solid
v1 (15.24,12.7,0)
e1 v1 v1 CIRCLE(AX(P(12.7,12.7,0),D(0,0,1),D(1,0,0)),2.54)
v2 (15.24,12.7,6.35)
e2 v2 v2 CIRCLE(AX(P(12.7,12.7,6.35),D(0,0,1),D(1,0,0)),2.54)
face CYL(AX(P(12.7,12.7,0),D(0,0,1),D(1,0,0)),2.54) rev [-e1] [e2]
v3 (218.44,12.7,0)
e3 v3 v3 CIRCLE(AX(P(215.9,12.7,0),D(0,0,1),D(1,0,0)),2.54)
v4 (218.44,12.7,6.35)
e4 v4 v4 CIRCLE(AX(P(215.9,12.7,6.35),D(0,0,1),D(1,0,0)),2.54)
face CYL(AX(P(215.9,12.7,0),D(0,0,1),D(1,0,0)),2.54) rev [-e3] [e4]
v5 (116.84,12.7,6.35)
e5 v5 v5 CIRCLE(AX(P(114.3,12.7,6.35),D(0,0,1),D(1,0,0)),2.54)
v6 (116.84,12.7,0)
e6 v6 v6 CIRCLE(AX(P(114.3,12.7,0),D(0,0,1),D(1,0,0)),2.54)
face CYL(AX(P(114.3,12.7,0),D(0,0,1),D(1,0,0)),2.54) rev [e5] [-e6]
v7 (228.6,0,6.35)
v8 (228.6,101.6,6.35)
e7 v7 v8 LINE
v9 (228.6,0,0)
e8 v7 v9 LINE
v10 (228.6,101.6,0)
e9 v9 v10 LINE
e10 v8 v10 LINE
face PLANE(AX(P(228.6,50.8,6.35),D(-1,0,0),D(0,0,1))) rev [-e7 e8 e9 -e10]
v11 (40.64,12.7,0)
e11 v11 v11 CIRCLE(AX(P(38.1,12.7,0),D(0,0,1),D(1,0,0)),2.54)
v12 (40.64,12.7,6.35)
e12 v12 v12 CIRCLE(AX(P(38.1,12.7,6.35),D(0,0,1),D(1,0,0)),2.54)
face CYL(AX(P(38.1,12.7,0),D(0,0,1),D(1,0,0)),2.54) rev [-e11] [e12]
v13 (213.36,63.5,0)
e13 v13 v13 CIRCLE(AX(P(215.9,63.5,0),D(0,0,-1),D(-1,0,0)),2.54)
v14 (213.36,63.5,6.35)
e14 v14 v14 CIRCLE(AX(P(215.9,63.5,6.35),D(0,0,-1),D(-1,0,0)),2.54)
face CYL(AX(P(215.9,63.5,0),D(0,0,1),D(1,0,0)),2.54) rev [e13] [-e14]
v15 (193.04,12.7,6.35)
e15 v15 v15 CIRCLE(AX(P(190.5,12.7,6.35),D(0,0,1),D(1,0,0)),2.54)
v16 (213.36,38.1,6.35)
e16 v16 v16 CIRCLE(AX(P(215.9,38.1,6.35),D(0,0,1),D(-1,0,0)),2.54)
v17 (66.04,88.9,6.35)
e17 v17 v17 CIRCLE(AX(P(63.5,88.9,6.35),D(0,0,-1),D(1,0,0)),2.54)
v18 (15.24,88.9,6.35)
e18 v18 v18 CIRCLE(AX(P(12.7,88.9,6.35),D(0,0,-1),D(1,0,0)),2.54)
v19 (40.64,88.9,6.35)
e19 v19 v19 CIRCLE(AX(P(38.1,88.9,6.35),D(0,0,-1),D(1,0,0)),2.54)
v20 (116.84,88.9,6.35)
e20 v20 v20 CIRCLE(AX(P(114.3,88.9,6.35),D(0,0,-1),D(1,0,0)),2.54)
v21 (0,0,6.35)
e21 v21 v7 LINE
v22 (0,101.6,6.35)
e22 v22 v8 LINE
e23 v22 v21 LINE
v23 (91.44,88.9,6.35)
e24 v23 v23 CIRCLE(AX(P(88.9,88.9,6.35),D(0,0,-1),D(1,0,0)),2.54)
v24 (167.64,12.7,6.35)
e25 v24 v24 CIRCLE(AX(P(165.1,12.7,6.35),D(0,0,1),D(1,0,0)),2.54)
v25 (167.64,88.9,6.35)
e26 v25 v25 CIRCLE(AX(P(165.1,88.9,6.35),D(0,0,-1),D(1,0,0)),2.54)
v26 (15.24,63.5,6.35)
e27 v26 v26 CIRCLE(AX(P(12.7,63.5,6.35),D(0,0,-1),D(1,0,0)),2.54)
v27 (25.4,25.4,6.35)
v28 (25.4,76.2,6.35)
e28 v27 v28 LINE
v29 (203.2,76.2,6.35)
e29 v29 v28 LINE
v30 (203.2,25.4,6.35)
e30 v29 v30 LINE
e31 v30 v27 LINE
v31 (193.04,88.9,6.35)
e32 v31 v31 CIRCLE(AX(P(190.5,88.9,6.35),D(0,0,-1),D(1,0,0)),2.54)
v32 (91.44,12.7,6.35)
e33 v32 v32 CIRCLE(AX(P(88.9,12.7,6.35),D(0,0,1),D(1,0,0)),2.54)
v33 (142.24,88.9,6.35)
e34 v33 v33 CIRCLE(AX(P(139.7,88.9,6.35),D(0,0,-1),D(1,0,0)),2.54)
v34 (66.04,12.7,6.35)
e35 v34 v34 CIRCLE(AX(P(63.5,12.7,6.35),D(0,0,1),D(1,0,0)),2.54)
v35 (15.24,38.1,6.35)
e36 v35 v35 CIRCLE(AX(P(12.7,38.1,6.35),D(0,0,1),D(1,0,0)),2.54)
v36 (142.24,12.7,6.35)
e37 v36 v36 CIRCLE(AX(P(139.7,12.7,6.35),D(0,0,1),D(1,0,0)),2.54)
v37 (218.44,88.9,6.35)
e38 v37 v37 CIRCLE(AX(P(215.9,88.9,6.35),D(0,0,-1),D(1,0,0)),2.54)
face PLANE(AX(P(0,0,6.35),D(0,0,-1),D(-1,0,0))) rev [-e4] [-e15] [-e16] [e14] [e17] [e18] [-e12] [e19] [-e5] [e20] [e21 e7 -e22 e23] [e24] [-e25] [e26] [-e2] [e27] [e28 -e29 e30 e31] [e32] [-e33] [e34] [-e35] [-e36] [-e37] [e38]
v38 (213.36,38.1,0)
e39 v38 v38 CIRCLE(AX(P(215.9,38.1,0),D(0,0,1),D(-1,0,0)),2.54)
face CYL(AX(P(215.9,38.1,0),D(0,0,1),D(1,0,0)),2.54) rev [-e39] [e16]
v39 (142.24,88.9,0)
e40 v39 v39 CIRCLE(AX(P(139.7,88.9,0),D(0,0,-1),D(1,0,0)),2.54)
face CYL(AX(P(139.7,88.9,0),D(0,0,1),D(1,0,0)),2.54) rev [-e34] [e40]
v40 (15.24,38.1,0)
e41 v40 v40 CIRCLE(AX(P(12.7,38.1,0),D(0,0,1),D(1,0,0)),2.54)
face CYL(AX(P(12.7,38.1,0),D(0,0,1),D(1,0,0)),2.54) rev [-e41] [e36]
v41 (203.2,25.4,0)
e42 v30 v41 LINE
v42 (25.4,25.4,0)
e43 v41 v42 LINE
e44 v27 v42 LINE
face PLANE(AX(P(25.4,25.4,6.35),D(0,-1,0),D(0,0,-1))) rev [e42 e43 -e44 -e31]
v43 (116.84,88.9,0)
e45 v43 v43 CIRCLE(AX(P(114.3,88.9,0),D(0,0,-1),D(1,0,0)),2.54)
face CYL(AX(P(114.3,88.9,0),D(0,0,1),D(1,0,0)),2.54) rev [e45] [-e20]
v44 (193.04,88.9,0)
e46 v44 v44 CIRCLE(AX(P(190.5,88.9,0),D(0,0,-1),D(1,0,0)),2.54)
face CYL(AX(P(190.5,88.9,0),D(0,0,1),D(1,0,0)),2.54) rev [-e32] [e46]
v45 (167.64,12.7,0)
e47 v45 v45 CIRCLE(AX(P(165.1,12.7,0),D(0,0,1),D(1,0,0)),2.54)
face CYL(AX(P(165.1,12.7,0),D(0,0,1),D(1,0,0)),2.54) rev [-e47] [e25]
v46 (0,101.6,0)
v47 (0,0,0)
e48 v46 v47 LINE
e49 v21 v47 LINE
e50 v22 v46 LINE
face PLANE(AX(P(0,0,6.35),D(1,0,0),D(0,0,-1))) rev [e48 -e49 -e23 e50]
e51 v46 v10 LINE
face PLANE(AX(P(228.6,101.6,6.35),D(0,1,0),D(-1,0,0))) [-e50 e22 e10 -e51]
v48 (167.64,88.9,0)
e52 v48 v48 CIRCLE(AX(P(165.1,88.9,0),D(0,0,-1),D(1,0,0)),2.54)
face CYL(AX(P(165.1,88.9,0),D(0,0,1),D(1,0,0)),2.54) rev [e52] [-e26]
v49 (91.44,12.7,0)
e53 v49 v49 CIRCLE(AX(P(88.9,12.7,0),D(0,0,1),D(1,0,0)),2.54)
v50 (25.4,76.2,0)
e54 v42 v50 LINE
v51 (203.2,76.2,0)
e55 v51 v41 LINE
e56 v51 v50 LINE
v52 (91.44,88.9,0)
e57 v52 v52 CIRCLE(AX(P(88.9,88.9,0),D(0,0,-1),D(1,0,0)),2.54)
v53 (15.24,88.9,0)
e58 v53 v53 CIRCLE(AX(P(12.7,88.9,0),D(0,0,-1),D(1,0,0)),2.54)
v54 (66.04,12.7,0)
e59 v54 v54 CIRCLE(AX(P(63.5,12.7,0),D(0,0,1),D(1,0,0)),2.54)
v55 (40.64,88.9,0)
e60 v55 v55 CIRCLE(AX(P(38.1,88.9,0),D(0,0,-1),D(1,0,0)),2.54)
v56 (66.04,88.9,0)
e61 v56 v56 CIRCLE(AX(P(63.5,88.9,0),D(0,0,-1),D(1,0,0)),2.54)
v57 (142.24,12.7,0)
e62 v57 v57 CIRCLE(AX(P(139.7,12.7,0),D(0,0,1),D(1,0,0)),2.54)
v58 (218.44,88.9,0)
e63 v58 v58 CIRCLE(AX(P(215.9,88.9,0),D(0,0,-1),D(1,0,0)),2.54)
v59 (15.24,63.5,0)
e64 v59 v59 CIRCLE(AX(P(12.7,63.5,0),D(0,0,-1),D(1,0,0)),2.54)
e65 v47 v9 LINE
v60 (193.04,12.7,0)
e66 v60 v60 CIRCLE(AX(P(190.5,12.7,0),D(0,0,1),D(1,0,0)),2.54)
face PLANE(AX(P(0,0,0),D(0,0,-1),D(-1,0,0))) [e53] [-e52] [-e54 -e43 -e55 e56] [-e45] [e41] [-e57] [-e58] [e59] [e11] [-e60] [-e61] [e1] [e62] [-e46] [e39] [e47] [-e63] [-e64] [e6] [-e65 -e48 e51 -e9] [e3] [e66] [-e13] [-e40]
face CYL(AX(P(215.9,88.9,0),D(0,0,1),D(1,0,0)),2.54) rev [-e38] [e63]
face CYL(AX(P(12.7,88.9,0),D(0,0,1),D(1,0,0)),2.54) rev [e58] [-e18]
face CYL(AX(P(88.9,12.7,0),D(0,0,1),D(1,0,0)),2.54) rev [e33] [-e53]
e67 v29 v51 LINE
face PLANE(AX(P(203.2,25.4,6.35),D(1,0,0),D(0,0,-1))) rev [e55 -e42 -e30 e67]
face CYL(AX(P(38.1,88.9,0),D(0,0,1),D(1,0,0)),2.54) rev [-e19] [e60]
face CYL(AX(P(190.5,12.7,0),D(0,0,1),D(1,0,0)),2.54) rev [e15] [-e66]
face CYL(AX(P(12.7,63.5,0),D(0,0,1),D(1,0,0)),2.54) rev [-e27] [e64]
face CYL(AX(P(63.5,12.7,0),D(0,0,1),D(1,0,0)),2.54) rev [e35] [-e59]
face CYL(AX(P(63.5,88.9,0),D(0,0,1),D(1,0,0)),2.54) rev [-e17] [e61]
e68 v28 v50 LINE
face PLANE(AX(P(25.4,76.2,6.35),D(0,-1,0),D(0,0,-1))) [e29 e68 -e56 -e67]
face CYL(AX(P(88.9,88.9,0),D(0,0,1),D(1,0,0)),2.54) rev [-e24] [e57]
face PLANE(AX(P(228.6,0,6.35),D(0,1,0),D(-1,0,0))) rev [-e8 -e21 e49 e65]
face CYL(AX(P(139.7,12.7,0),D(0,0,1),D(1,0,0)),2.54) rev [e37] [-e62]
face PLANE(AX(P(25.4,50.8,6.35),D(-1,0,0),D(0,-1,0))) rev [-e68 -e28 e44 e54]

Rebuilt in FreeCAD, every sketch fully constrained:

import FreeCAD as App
import Part
import Sketcher
from FreeCAD import Vector
Q = App.Units.Quantity


def add_polygon(sketch, points):
    """Adds a closed chain of lines whose ends are joined by coincident constraints."""
    first, n = sketch.GeometryCount, len(points)
    for a, b in zip(points, points[1:] + points[:1]):
        sketch.addGeometry(Part.LineSegment(App.Vector(*a, 0), App.Vector(*b, 0)), False)
    for i in range(n):
        sketch.addConstraint(Sketcher.Constraint("Coincident", first + i, 2, first + (i + 1) % n, 1))

doc = App.newDocument("Part")
body = doc.addObject("PartDesign::Body", "Body")

# Sketch on XY plane
sketch1 = body.newObject("Sketcher::SketchObject", "Sketch")
sketch1.AttachmentSupport = (doc.getObject("XY_Plane"), [""])
sketch1.MapMode = "FlatFace"
add_polygon(sketch1, [(0, 51), (0, 0), (229, 0), (229, 51), (203, 51), (203, 25), (25, 25), (25, 51)])  # lines 0-7
sketch1.addConstraint([
    Sketcher.Constraint("Vertical", 0),
    Sketcher.Constraint("Horizontal", 1),
    Sketcher.Constraint("Vertical", 2),
    Sketcher.Constraint("Horizontal", 3),
    Sketcher.Constraint("Vertical", 4),
    Sketcher.Constraint("Horizontal", 5),
    Sketcher.Constraint("Vertical", 6),
    Sketcher.Constraint("Horizontal", 7),
    Sketcher.Constraint("Coincident", 0, 2, -1, 1),
    Sketcher.Constraint("Horizontal", 3, 2, 6, 2),
    Sketcher.Constraint("Equal", 3, 7),
    Sketcher.Constraint("Equal", 7, 4),
    Sketcher.Constraint("DistanceX", 1, 1, 1, 2, Q("9 in")),
    Sketcher.Constraint("DistanceX", 3, 2, 3, 1, Q("1 in")),
    Sketcher.Constraint("DistanceY", 0, 2, 0, 1, Q("2 in")),
])
pad1 = body.newObject("PartDesign::Pad", "Pad")
pad1.Profile = sketch1
pad1.Length = Q("0.25 in")

# Sketch on XY plane
sketch2 = body.newObject("Sketcher::SketchObject", "Sketch001")
sketch2.AttachmentSupport = (doc.getObject("XY_Plane"), [""])
sketch2.MapMode = "FlatFace"
sketch2.AttachmentOffset = App.Placement(Vector(0, 0, 0.25 * 25.4), App.Rotation())
sketch2.addGeometry([
    Part.Circle(Vector(12.7, 38.1, 0), Vector(0, 0, 1), 2.5),  # 0
    Part.Circle(Vector(12.7, 12.7, 0), Vector(0, 0, 1), 2.5),  # 1
    Part.Circle(Vector(38.1, 12.7, 0), Vector(0, 0, 1), 2.5),  # 2
    Part.Circle(Vector(63.5, 12.7, 0), Vector(0, 0, 1), 2.5),  # 3
    Part.Circle(Vector(88.9, 12.7, 0), Vector(0, 0, 1), 2.5),  # 4
    Part.Circle(Vector(114.3, 12.7, 0), Vector(0, 0, 1), 2.5),  # 5
    Part.Circle(Vector(139.7, 12.7, 0), Vector(0, 0, 1), 2.5),  # 6
    Part.Circle(Vector(165.1, 12.7, 0), Vector(0, 0, 1), 2.5),  # 7
    Part.Circle(Vector(190.5, 12.7, 0), Vector(0, 0, 1), 2.5),  # 8
    Part.Circle(Vector(215.9, 12.7, 0), Vector(0, 0, 1), 2.5),  # 9
    Part.Circle(Vector(215.9, 38.1, 0), Vector(0, 0, 1), 2.5),  # 10
], False)
sketch2.addConstraint([
    Sketcher.Constraint("Equal", 0, 1),
    Sketcher.Constraint("Equal", 1, 2),
    Sketcher.Constraint("Equal", 2, 3),
    Sketcher.Constraint("Equal", 3, 4),
    Sketcher.Constraint("Equal", 4, 5),
    Sketcher.Constraint("Equal", 5, 6),
    Sketcher.Constraint("Equal", 6, 7),
    Sketcher.Constraint("Equal", 7, 8),
    Sketcher.Constraint("Equal", 8, 9),
    Sketcher.Constraint("Equal", 9, 10),
    Sketcher.Constraint("Horizontal", 1, 3, 2, 3),
    Sketcher.Constraint("Horizontal", 2, 3, 3, 3),
    Sketcher.Constraint("Horizontal", 3, 3, 4, 3),
    Sketcher.Constraint("Horizontal", 4, 3, 5, 3),
    Sketcher.Constraint("Horizontal", 5, 3, 6, 3),
    Sketcher.Constraint("Horizontal", 6, 3, 7, 3),
    Sketcher.Constraint("Horizontal", 7, 3, 8, 3),
    Sketcher.Constraint("Horizontal", 8, 3, 9, 3),
    Sketcher.Constraint("Horizontal", 0, 3, 10, 3),
    Sketcher.Constraint("Vertical", 0, 3, 1, 3),
    Sketcher.Constraint("Vertical", 9, 3, 10, 3),
    Sketcher.Constraint("Diameter", 0, Q("0.2 in")),
    Sketcher.Constraint("DistanceY", 1, 3, 0, 3, Q("1 in")),
    Sketcher.Constraint("DistanceX", 1, 3, 2, 3, Q("1 in")),
    Sketcher.Constraint("DistanceX", 2, 3, 3, 3, Q("1 in")),
    Sketcher.Constraint("DistanceX", 3, 3, 4, 3, Q("1 in")),
    Sketcher.Constraint("DistanceX", 4, 3, 5, 3, Q("1 in")),
    Sketcher.Constraint("DistanceX", 5, 3, 6, 3, Q("1 in")),
    Sketcher.Constraint("DistanceX", 6, 3, 7, 3, Q("1 in")),
    Sketcher.Constraint("DistanceX", 7, 3, 8, 3, Q("1 in")),
    Sketcher.Constraint("DistanceX", 8, 3, 9, 3, Q("1 in")),
    Sketcher.Constraint("DistanceX", -1, 1, 0, 3, Q("0.5 in")),
    Sketcher.Constraint("DistanceY", -1, 1, 0, 3, Q("1.5 in")),
])
pocket1 = body.newObject("PartDesign::Pocket", "Pocket")
pocket1.Profile = sketch2
pocket1.Type = "ThroughAll"
doc.recompute()

datumplane = body.newObject("PartDesign::Plane", "DatumPlane")
datumplane.AttachmentSupport = (doc.getObject("XZ_Plane"), [""])
datumplane.MapMode = "FlatFace"
datumplane.AttachmentOffset = App.Placement(Vector(0, 0, -2 * 25.4), App.Rotation())
mirrored = body.newObject("PartDesign::Mirrored", "Mirrored")
mirrored.Originals = [pad1, pocket1]
mirrored.MirrorPlane = (datumplane, [""])
body.Tip = mirrored

doc.recompute()
